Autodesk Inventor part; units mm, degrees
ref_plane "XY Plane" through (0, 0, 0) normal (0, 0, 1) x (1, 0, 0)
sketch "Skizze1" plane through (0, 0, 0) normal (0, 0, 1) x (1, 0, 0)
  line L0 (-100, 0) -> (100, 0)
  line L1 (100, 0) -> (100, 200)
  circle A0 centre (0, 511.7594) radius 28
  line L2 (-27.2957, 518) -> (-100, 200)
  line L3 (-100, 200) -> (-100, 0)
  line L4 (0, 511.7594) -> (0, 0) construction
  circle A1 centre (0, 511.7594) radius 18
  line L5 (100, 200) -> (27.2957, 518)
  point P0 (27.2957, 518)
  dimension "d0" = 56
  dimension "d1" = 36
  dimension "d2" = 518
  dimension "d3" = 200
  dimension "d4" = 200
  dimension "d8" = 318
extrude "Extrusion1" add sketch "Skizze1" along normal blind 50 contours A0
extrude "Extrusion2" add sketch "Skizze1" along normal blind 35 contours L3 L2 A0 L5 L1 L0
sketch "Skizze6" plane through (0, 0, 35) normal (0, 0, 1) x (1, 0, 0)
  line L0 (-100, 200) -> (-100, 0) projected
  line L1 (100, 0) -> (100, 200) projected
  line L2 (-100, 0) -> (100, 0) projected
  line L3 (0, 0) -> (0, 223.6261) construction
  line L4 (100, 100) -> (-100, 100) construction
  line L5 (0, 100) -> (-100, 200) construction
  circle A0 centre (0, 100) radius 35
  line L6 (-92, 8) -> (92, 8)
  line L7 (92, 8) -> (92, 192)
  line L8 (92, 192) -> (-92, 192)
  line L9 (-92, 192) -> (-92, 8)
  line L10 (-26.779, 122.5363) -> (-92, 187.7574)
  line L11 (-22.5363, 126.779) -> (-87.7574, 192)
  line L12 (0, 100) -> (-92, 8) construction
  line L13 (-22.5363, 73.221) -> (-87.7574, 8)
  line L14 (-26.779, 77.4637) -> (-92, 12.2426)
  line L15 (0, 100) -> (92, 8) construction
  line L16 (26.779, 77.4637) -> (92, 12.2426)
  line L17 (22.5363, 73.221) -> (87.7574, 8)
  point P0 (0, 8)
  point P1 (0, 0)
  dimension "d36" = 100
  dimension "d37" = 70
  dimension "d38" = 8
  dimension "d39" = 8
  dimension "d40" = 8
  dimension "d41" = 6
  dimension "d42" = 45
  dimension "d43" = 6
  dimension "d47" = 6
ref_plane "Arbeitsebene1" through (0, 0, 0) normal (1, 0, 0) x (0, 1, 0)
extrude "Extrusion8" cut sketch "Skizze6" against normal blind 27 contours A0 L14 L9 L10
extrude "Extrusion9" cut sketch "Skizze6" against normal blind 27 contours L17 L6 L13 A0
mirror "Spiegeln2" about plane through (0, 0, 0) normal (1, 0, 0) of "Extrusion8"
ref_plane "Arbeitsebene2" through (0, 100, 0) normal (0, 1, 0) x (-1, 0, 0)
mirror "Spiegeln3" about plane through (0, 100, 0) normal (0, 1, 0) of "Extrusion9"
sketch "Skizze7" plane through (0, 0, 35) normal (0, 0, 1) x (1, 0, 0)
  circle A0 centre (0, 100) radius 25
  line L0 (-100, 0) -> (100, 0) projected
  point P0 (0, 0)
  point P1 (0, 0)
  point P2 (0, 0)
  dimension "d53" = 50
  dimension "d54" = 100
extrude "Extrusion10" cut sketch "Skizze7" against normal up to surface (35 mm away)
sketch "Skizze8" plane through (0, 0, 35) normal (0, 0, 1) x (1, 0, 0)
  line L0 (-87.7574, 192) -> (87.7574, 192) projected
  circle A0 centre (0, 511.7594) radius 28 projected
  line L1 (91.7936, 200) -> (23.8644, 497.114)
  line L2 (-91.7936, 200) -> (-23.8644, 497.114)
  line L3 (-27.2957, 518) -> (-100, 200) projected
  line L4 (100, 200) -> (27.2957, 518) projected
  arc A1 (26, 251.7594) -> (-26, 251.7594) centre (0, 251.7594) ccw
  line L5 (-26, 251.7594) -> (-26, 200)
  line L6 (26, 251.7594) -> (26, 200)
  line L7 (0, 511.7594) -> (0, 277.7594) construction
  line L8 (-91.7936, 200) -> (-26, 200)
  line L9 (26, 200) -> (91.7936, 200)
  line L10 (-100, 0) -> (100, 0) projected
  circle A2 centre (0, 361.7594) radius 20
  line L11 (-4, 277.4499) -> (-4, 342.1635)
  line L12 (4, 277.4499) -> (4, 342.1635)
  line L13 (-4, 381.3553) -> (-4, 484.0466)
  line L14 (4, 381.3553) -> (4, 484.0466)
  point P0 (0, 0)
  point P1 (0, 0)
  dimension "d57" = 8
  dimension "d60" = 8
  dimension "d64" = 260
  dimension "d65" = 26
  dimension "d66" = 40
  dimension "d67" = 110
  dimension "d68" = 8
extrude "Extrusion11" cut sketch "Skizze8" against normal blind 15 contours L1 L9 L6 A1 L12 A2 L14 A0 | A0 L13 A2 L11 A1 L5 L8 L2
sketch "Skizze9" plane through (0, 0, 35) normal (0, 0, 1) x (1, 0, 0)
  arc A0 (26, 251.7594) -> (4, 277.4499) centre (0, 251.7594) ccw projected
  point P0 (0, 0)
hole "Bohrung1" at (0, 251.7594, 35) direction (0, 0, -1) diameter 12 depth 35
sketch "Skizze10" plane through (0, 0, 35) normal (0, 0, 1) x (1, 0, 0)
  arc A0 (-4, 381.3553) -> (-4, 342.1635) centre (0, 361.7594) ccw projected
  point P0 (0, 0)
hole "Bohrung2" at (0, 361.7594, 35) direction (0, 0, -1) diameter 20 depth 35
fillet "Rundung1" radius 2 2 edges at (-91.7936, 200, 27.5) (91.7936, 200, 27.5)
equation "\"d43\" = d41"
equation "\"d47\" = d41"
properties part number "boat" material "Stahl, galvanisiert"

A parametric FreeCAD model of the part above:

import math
import FreeCAD as App
import Part
import Sketcher


def edges_at(feature, points):
    """Names of the edges that pass closest to the given points."""
    edges = feature.Shape.Edges
    near = lambda p: min(range(len(edges)), key=lambda i: edges[i].distToShape(Part.Vertex(*p))[0])
    return sorted({f"Edge{near(p) + 1}" for p in points})

doc = App.newDocument("Part")
body = doc.addObject("PartDesign::Body", "Body")

# Sketch on XY plane
sketch1 = body.newObject("Sketcher::SketchObject", "Sketch")
sketch1.AttachmentSupport = (doc.getObject("XY_Plane"), [""])
sketch1.MapMode = "FlatFace"
sketch1.addGeometry(Part.Circle(App.Vector(0, 512, 0), App.Vector(0, 0, 1), 28), False)
sketch1.addGeometry(Part.Circle(App.Vector(0, 512, 0), App.Vector(0, 0, 1), 18), False)
sketch1.addConstraint(Sketcher.Constraint("Coincident", 1, 3, 0, 3))
sketch1.addConstraint(Sketcher.Constraint("PointOnObject", 0, 3, -2))
sketch1.addConstraint(Sketcher.Constraint("Diameter", 0, 56.0))
sketch1.addConstraint(Sketcher.Constraint("Diameter", 1, 36.0))
sketch1.addConstraint(Sketcher.Constraint("DistanceY", -1, 1, 0, 3, 511.7594))
pad1 = body.newObject("PartDesign::Pad", "Pad")
pad1.Profile = sketch1
pad1.Length = 50

# Sketch on XY plane
sketch2 = body.newObject("Sketcher::SketchObject", "Sketch001")
sketch2.AttachmentSupport = (doc.getObject("XY_Plane"), [""])
sketch2.MapMode = "FlatFace"
sketch2.addGeometry(Part.LineSegment(App.Vector(-100, 200, 0), App.Vector(-100, 0, 0)), False)
sketch2.addGeometry(Part.LineSegment(App.Vector(-100, 0, 0), App.Vector(100, 0, 0)), False)
sketch2.addGeometry(Part.LineSegment(App.Vector(100, 0, 0), App.Vector(100, 200, 0)), False)
sketch2.addGeometry(Part.LineSegment(App.Vector(100, 200, 0), App.Vector(27, 518, 0)), False)
sketch2.addGeometry(Part.ArcOfCircle(Part.Circle(App.Vector(0, 512, 0), App.Vector(0, 0, 1), 28), math.radians(167), math.radians(373)), False)
sketch2.addGeometry(Part.LineSegment(App.Vector(-27, 518, 0), App.Vector(-100, 200, 0)), False)
sketch2.addConstraint(Sketcher.Constraint("Coincident", 0, 2, 1, 1))
sketch2.addConstraint(Sketcher.Constraint("Coincident", 1, 2, 2, 1))
sketch2.addConstraint(Sketcher.Constraint("Coincident", 2, 2, 3, 1))
sketch2.addConstraint(Sketcher.Constraint("Tangent", 3, 2, 4, 2))
sketch2.addConstraint(Sketcher.Constraint("Tangent", 4, 1, 5, 1))
sketch2.addConstraint(Sketcher.Constraint("Coincident", 5, 2, 0, 1))
sketch2.addConstraint(Sketcher.Constraint("Vertical", 0))
sketch2.addConstraint(Sketcher.Constraint("Horizontal", 1))
sketch2.addConstraint(Sketcher.Constraint("Vertical", 2))
sketch2.addConstraint(Sketcher.Constraint("Symmetric", 0, 2, 1, 2, -1, 1))
sketch2.addConstraint(Sketcher.Constraint("PointOnObject", 4, 3, -2))
sketch2.addConstraint(Sketcher.Constraint("Horizontal", 2, 2, 5, 2))
sketch2.addConstraint(Sketcher.Constraint("Equal", 1, 0))
sketch2.addConstraint(Sketcher.Constraint("Radius", 4, 28.0))
sketch2.addConstraint(Sketcher.Constraint("DistanceX", 1, 1, 1, 2, 200.0))
sketch2.addConstraint(Sketcher.Constraint("DistanceY", -1, 1, 3, 2, 518.0))
pad2 = body.newObject("PartDesign::Pad", "Pad001")
pad2.Profile = sketch2
pad2.Length = 35

# Sketch on XY plane
sketch3 = body.newObject("Sketcher::SketchObject", "Sketch002")
sketch3.AttachmentSupport = (doc.getObject("XY_Plane"), [""])
sketch3.MapMode = "FlatFace"
sketch3.AttachmentOffset = App.Placement(App.Vector(0, 0, 35), App.Rotation())
sketch3.addGeometry(Part.ArcOfCircle(Part.Circle(App.Vector(0, 100, 0), App.Vector(0, 0, 1), 35), math.radians(140), math.radians(220)), False)
sketch3.addGeometry(Part.LineSegment(App.Vector(-27, 123, 0), App.Vector(-92, 188, 0)), False)
sketch3.addGeometry(Part.LineSegment(App.Vector(-92, 188, 0), App.Vector(-92, 12, 0)), False)
sketch3.addGeometry(Part.LineSegment(App.Vector(-92, 12, 0), App.Vector(-27, 77, 0)), False)
sketch3.addConstraint(Sketcher.Constraint("Coincident", 0, 1, 1, 1))
sketch3.addConstraint(Sketcher.Constraint("Coincident", 1, 2, 2, 1))
sketch3.addConstraint(Sketcher.Constraint("Coincident", 2, 2, 3, 1))
sketch3.addConstraint(Sketcher.Constraint("Coincident", 3, 2, 0, 2))
sketch3.addConstraint(Sketcher.Constraint("Vertical", 2))
sketch3.addConstraint(Sketcher.Constraint("PointOnObject", 0, 3, -2))
sketch3.addConstraint(Sketcher.Constraint("Perpendicular", 1, 3))
sketch3.addConstraint(Sketcher.Constraint("Vertical", 0, 1, 3, 2))
sketch3.addConstraint(Sketcher.Constraint("Equal", 1, 3))
sketch3.addConstraint(Sketcher.Constraint("Radius", 0, 35.0))
sketch3.addConstraint(Sketcher.Constraint("DistanceY", -1, 1, 0, 3, 100.0))
sketch3.addConstraint(Sketcher.Constraint("DistanceX", 1, 2, -1, 1, 92.0))
sketch3.addConstraint(Sketcher.Constraint("DistanceY", 2, 2, 2, 1, 175.5148))
pocket1 = body.newObject("PartDesign::Pocket", "Pocket")
pocket1.Profile = sketch3
pocket1.Length = 27

# Sketch on XY plane
sketch4 = body.newObject("Sketcher::SketchObject", "Sketch003")
sketch4.AttachmentSupport = (doc.getObject("XY_Plane"), [""])
sketch4.MapMode = "FlatFace"
sketch4.AttachmentOffset = App.Placement(App.Vector(0, 0, 35), App.Rotation())
sketch4.addGeometry(Part.LineSegment(App.Vector(88, 8, 0), App.Vector(23, 73, 0)), False)
sketch4.addGeometry(Part.ArcOfCircle(Part.Circle(App.Vector(0, 100, 0), App.Vector(0, 0, 1), 35), math.radians(-130), math.radians(-50)), False)
sketch4.addGeometry(Part.LineSegment(App.Vector(-23, 73, 0), App.Vector(-88, 8, 0)), False)
sketch4.addGeometry(Part.LineSegment(App.Vector(-88, 8, 0), App.Vector(88, 8, 0)), False)
sketch4.addConstraint(Sketcher.Constraint("Coincident", 0, 2, 1, 2))
sketch4.addConstraint(Sketcher.Constraint("Coincident", 1, 1, 2, 1))
sketch4.addConstraint(Sketcher.Constraint("Coincident", 2, 2, 3, 1))
sketch4.addConstraint(Sketcher.Constraint("Coincident", 3, 2, 0, 1))
sketch4.addConstraint(Sketcher.Constraint("Horizontal", 3))
sketch4.addConstraint(Sketcher.Constraint("Symmetric", 0, 2, 1, 1, -2))
sketch4.addConstraint(Sketcher.Constraint("Perpendicular", 0, 2))
sketch4.addConstraint(Sketcher.Constraint("Equal", 0, 2))
sketch4.addConstraint(Sketcher.Constraint("Radius", 1, 35.0))
sketch4.addConstraint(Sketcher.Constraint("DistanceY", -1, 1, 1, 3, 100.0))
sketch4.addConstraint(Sketcher.Constraint("DistanceY", -1, 1, 2, 2, 8.0))
sketch4.addConstraint(Sketcher.Constraint("DistanceX", 3, 1, 3, 2, 175.5148))
pocket2 = body.newObject("PartDesign::Pocket", "Pocket001")
pocket2.Profile = sketch4
pocket2.Length = 27
doc.recompute()

mirrored = body.newObject("PartDesign::Mirrored", "Mirrored")
mirrored.Originals = [pocket1]
mirrored.MirrorPlane = (doc.getObject("YZ_Plane"), [""])
body.Tip = mirrored
doc.recompute()

datumplane = body.newObject("PartDesign::Plane", "DatumPlane")
datumplane.AttachmentSupport = (doc.getObject("XZ_Plane"), [""])
datumplane.MapMode = "FlatFace"
datumplane.AttachmentOffset = App.Placement(App.Vector(0, 0, -100), App.Rotation())
mirrored2 = body.newObject("PartDesign::Mirrored", "Mirrored001")
mirrored2.Originals = [pocket2]
mirrored2.MirrorPlane = (datumplane, [""])
body.Tip = mirrored2

# Sketch on XY plane
sketch5 = body.newObject("Sketcher::SketchObject", "Sketch004")
sketch5.AttachmentSupport = (doc.getObject("XY_Plane"), [""])
sketch5.MapMode = "FlatFace"
sketch5.AttachmentOffset = App.Placement(App.Vector(0, 0, 35), App.Rotation())
sketch5.addGeometry(Part.Circle(App.Vector(0, 100, 0), App.Vector(0, 0, 1), 25), False)
sketch5.addConstraint(Sketcher.Constraint("PointOnObject", 0, 3, -2))
sketch5.addConstraint(Sketcher.Constraint("Diameter", 0, 50.0))
sketch5.addConstraint(Sketcher.Constraint("DistanceY", -1, 1, 0, 3, 100.0))
pocket3 = body.newObject("PartDesign::Pocket", "Pocket002")
pocket3.Profile = sketch5
pocket3.Length = 35

# Sketch on XY plane
sketch6 = body.newObject("Sketcher::SketchObject", "Sketch005")
sketch6.AttachmentSupport = (doc.getObject("XY_Plane"), [""])
sketch6.MapMode = "FlatFace"
sketch6.AttachmentOffset = App.Placement(App.Vector(0, 0, 35), App.Rotation())
sketch6.addGeometry(Part.LineSegment(App.Vector(92, 200, 0), App.Vector(24, 497, 0)), False)
sketch6.addGeometry(Part.ArcOfCircle(Part.Circle(App.Vector(0, 512, 0), App.Vector(0, 0, 1), 28), math.radians(-82), math.radians(-32)), False)
sketch6.addGeometry(Part.LineSegment(App.Vector(4, 484, 0), App.Vector(4, 381, 0)), False)
sketch6.addGeometry(Part.ArcOfCircle(Part.Circle(App.Vector(0, 362, 0), App.Vector(0, 0, 1), 20), math.radians(-78), math.radians(78)), False)
sketch6.addGeometry(Part.LineSegment(App.Vector(4, 342, 0), App.Vector(4, 277, 0)), False)
sketch6.addGeometry(Part.ArcOfCircle(Part.Circle(App.Vector(0, 252, 0), App.Vector(0, 0, 1), 26), math.radians(0), math.radians(81)), False)
sketch6.addGeometry(Part.LineSegment(App.Vector(26, 252, 0), App.Vector(26, 200, 0)), False)
sketch6.addGeometry(Part.LineSegment(App.Vector(26, 200, 0), App.Vector(92, 200, 0)), False)
sketch6.addGeometry(Part.ArcOfCircle(Part.Circle(App.Vector(0, 512, 0), App.Vector(0, 0, 1), 28), math.radians(-148), math.radians(-98)), False)
sketch6.addGeometry(Part.LineSegment(App.Vector(-24, 497, 0), App.Vector(-92, 200, 0)), False)
sketch6.addGeometry(Part.LineSegment(App.Vector(-92, 200, 0), App.Vector(-26, 200, 0)), False)
sketch6.addGeometry(Part.LineSegment(App.Vector(-26, 200, 0), App.Vector(-26, 252, 0)), False)
sketch6.addGeometry(Part.ArcOfCircle(Part.Circle(App.Vector(0, 252, 0), App.Vector(0, 0, 1), 26), math.radians(99), math.radians(180)), False)
sketch6.addGeometry(Part.LineSegment(App.Vector(-4, 277, 0), App.Vector(-4, 342, 0)), False)
sketch6.addGeometry(Part.ArcOfCircle(Part.Circle(App.Vector(0, 362, 0), App.Vector(0, 0, 1), 20), math.radians(102), math.radians(258)), False)
sketch6.addGeometry(Part.LineSegment(App.Vector(-4, 381, 0), App.Vector(-4, 484, 0)), False)
sketch6.addConstraint(Sketcher.Constraint("Coincident", 0, 2, 1, 2))
sketch6.addConstraint(Sketcher.Constraint("Coincident", 1, 1, 2, 1))
sketch6.addConstraint(Sketcher.Constraint("Coincident", 2, 2, 3, 2))
sketch6.addConstraint(Sketcher.Constraint("Coincident", 3, 1, 4, 1))
sketch6.addConstraint(Sketcher.Constraint("Coincident", 4, 2, 5, 2))
sketch6.addConstraint(Sketcher.Constraint("Tangent", 5, 1, 6, 1))
sketch6.addConstraint(Sketcher.Constraint("Coincident", 6, 2, 7, 1))
sketch6.addConstraint(Sketcher.Constraint("Coincident", 7, 2, 0, 1))
sketch6.addConstraint(Sketcher.Constraint("Coincident", 8, 1, 9, 1))
sketch6.addConstraint(Sketcher.Constraint("Coincident", 9, 2, 10, 1))
sketch6.addConstraint(Sketcher.Constraint("Coincident", 10, 2, 11, 1))
sketch6.addConstraint(Sketcher.Constraint("Tangent", 11, 2, 12, 2))
sketch6.addConstraint(Sketcher.Constraint("Coincident", 12, 1, 13, 1))
sketch6.addConstraint(Sketcher.Constraint("Coincident", 13, 2, 14, 2))
sketch6.addConstraint(Sketcher.Constraint("Coincident", 14, 1, 15, 1))
sketch6.addConstraint(Sketcher.Constraint("Coincident", 15, 2, 8, 2))
sketch6.addConstraint(Sketcher.Constraint("Vertical", 2))
sketch6.addConstraint(Sketcher.Constraint("Vertical", 4))
sketch6.addConstraint(Sketcher.Constraint("Vertical", 6))
sketch6.addConstraint(Sketcher.Constraint("Horizontal", 7))
sketch6.addConstraint(Sketcher.Constraint("Horizontal", 10))
sketch6.addConstraint(Sketcher.Constraint("Vertical", 11))
sketch6.addConstraint(Sketcher.Constraint("Vertical", 13))
sketch6.addConstraint(Sketcher.Constraint("Vertical", 15))
sketch6.addConstraint(Sketcher.Constraint("Coincident", 8, 3, 1, 3))
sketch6.addConstraint(Sketcher.Constraint("Coincident", 12, 3, 5, 3))
sketch6.addConstraint(Sketcher.Constraint("Coincident", 14, 3, 3, 3))
sketch6.addConstraint(Sketcher.Constraint("Equal", 1, 8))
sketch6.addConstraint(Sketcher.Constraint("Equal", 5, 12))
sketch6.addConstraint(Sketcher.Constraint("Equal", 3, 14))
sketch6.addConstraint(Sketcher.Constraint("Symmetric", 0, 2, 8, 1, -2))
sketch6.addConstraint(Sketcher.Constraint("Symmetric", 7, 2, 9, 2, -2))
sketch6.addConstraint(Sketcher.Constraint("Symmetric", 4, 2, 12, 1, -2))
sketch6.addConstraint(Sketcher.Constraint("Symmetric", 2, 2, 14, 1, -2))
sketch6.addConstraint(Sketcher.Constraint("Vertical", 2, 2, 3, 1))
sketch6.addConstraint(Sketcher.Constraint("Radius", 3, 20.0))
sketch6.addConstraint(Sketcher.Constraint("Radius", 5, 26.0))
sketch6.addConstraint(Sketcher.Constraint("Radius", 1, 28.0))
sketch6.addConstraint(Sketcher.Constraint("DistanceY", 5, 3, 3, 3, 110.0))
sketch6.addConstraint(Sketcher.Constraint("DistanceY", 5, 3, 1, 3, 260.0))
sketch6.addConstraint(Sketcher.Constraint("DistanceX", 12, 1, 4, 2, 8.0))
sketch6.addConstraint(Sketcher.Constraint("DistanceY", -1, 1, 6, 2, 200.0))
sketch6.addConstraint(Sketcher.Constraint("DistanceY", -1, 1, 4, 2, 277.45))
sketch6.addConstraint(Sketcher.Constraint("DistanceX", 7, 1, 7, 2, 65.7936))
sketch6.addConstraint(Sketcher.Constraint("DistanceY", -1, 1, 0, 2, 497.114))
pocket4 = body.newObject("PartDesign::Pocket", "Pocket003")
pocket4.Profile = sketch6
pocket4.Length = 15

# Sketch on XY plane
sketch7 = body.newObject("Sketcher::SketchObject", "Sketch006")
sketch7.AttachmentSupport = (doc.getObject("XY_Plane"), [""])
sketch7.MapMode = "FlatFace"
sketch7.AttachmentOffset = App.Placement(App.Vector(0, 0, 35), App.Rotation())
sketch7.addGeometry(Part.Circle(App.Vector(0, 252, 0), App.Vector(0, 0, 1), 6), False)
sketch7.addConstraint(Sketcher.Constraint("PointOnObject", 0, 3, -2))
sketch7.addConstraint(Sketcher.Constraint("Diameter", 0, 12.0))
sketch7.addConstraint(Sketcher.Constraint("DistanceY", -1, 1, 0, 3, 251.7594))
doc.recompute()
hole = body.newObject("PartDesign::Hole", "Hole")
hole.Profile = sketch7
hole.ThreadType = "None"
hole.Diameter = 12
hole.DepthType = "Dimension"
hole.Depth = 35
hole.DrillPoint = "Flat"

# Sketch on XY plane
sketch8 = body.newObject("Sketcher::SketchObject", "Sketch007")
sketch8.AttachmentSupport = (doc.getObject("XY_Plane"), [""])
sketch8.MapMode = "FlatFace"
sketch8.AttachmentOffset = App.Placement(App.Vector(0, 0, 35), App.Rotation())
sketch8.addGeometry(Part.Circle(App.Vector(0, 362, 0), App.Vector(0, 0, 1), 10), False)
sketch8.addConstraint(Sketcher.Constraint("PointOnObject", 0, 3, -2))
sketch8.addConstraint(Sketcher.Constraint("Diameter", 0, 20.0))
sketch8.addConstraint(Sketcher.Constraint("DistanceY", -1, 1, 0, 3, 361.7594))
doc.recompute()
hole2 = body.newObject("PartDesign::Hole", "Hole001")
hole2.Profile = sketch8
hole2.ThreadType = "None"
hole2.Diameter = 20
hole2.DepthType = "Dimension"
hole2.Depth = 35
hole2.DrillPoint = "Flat"
doc.recompute()

fillet = body.newObject("PartDesign::Fillet", "Fillet")
fillet.Base = (hole2, edges_at(hole2, [(-91.794, 200, 27.5), (91.794, 200, 27.5)]))
fillet.Radius = 2

doc.recompute()
